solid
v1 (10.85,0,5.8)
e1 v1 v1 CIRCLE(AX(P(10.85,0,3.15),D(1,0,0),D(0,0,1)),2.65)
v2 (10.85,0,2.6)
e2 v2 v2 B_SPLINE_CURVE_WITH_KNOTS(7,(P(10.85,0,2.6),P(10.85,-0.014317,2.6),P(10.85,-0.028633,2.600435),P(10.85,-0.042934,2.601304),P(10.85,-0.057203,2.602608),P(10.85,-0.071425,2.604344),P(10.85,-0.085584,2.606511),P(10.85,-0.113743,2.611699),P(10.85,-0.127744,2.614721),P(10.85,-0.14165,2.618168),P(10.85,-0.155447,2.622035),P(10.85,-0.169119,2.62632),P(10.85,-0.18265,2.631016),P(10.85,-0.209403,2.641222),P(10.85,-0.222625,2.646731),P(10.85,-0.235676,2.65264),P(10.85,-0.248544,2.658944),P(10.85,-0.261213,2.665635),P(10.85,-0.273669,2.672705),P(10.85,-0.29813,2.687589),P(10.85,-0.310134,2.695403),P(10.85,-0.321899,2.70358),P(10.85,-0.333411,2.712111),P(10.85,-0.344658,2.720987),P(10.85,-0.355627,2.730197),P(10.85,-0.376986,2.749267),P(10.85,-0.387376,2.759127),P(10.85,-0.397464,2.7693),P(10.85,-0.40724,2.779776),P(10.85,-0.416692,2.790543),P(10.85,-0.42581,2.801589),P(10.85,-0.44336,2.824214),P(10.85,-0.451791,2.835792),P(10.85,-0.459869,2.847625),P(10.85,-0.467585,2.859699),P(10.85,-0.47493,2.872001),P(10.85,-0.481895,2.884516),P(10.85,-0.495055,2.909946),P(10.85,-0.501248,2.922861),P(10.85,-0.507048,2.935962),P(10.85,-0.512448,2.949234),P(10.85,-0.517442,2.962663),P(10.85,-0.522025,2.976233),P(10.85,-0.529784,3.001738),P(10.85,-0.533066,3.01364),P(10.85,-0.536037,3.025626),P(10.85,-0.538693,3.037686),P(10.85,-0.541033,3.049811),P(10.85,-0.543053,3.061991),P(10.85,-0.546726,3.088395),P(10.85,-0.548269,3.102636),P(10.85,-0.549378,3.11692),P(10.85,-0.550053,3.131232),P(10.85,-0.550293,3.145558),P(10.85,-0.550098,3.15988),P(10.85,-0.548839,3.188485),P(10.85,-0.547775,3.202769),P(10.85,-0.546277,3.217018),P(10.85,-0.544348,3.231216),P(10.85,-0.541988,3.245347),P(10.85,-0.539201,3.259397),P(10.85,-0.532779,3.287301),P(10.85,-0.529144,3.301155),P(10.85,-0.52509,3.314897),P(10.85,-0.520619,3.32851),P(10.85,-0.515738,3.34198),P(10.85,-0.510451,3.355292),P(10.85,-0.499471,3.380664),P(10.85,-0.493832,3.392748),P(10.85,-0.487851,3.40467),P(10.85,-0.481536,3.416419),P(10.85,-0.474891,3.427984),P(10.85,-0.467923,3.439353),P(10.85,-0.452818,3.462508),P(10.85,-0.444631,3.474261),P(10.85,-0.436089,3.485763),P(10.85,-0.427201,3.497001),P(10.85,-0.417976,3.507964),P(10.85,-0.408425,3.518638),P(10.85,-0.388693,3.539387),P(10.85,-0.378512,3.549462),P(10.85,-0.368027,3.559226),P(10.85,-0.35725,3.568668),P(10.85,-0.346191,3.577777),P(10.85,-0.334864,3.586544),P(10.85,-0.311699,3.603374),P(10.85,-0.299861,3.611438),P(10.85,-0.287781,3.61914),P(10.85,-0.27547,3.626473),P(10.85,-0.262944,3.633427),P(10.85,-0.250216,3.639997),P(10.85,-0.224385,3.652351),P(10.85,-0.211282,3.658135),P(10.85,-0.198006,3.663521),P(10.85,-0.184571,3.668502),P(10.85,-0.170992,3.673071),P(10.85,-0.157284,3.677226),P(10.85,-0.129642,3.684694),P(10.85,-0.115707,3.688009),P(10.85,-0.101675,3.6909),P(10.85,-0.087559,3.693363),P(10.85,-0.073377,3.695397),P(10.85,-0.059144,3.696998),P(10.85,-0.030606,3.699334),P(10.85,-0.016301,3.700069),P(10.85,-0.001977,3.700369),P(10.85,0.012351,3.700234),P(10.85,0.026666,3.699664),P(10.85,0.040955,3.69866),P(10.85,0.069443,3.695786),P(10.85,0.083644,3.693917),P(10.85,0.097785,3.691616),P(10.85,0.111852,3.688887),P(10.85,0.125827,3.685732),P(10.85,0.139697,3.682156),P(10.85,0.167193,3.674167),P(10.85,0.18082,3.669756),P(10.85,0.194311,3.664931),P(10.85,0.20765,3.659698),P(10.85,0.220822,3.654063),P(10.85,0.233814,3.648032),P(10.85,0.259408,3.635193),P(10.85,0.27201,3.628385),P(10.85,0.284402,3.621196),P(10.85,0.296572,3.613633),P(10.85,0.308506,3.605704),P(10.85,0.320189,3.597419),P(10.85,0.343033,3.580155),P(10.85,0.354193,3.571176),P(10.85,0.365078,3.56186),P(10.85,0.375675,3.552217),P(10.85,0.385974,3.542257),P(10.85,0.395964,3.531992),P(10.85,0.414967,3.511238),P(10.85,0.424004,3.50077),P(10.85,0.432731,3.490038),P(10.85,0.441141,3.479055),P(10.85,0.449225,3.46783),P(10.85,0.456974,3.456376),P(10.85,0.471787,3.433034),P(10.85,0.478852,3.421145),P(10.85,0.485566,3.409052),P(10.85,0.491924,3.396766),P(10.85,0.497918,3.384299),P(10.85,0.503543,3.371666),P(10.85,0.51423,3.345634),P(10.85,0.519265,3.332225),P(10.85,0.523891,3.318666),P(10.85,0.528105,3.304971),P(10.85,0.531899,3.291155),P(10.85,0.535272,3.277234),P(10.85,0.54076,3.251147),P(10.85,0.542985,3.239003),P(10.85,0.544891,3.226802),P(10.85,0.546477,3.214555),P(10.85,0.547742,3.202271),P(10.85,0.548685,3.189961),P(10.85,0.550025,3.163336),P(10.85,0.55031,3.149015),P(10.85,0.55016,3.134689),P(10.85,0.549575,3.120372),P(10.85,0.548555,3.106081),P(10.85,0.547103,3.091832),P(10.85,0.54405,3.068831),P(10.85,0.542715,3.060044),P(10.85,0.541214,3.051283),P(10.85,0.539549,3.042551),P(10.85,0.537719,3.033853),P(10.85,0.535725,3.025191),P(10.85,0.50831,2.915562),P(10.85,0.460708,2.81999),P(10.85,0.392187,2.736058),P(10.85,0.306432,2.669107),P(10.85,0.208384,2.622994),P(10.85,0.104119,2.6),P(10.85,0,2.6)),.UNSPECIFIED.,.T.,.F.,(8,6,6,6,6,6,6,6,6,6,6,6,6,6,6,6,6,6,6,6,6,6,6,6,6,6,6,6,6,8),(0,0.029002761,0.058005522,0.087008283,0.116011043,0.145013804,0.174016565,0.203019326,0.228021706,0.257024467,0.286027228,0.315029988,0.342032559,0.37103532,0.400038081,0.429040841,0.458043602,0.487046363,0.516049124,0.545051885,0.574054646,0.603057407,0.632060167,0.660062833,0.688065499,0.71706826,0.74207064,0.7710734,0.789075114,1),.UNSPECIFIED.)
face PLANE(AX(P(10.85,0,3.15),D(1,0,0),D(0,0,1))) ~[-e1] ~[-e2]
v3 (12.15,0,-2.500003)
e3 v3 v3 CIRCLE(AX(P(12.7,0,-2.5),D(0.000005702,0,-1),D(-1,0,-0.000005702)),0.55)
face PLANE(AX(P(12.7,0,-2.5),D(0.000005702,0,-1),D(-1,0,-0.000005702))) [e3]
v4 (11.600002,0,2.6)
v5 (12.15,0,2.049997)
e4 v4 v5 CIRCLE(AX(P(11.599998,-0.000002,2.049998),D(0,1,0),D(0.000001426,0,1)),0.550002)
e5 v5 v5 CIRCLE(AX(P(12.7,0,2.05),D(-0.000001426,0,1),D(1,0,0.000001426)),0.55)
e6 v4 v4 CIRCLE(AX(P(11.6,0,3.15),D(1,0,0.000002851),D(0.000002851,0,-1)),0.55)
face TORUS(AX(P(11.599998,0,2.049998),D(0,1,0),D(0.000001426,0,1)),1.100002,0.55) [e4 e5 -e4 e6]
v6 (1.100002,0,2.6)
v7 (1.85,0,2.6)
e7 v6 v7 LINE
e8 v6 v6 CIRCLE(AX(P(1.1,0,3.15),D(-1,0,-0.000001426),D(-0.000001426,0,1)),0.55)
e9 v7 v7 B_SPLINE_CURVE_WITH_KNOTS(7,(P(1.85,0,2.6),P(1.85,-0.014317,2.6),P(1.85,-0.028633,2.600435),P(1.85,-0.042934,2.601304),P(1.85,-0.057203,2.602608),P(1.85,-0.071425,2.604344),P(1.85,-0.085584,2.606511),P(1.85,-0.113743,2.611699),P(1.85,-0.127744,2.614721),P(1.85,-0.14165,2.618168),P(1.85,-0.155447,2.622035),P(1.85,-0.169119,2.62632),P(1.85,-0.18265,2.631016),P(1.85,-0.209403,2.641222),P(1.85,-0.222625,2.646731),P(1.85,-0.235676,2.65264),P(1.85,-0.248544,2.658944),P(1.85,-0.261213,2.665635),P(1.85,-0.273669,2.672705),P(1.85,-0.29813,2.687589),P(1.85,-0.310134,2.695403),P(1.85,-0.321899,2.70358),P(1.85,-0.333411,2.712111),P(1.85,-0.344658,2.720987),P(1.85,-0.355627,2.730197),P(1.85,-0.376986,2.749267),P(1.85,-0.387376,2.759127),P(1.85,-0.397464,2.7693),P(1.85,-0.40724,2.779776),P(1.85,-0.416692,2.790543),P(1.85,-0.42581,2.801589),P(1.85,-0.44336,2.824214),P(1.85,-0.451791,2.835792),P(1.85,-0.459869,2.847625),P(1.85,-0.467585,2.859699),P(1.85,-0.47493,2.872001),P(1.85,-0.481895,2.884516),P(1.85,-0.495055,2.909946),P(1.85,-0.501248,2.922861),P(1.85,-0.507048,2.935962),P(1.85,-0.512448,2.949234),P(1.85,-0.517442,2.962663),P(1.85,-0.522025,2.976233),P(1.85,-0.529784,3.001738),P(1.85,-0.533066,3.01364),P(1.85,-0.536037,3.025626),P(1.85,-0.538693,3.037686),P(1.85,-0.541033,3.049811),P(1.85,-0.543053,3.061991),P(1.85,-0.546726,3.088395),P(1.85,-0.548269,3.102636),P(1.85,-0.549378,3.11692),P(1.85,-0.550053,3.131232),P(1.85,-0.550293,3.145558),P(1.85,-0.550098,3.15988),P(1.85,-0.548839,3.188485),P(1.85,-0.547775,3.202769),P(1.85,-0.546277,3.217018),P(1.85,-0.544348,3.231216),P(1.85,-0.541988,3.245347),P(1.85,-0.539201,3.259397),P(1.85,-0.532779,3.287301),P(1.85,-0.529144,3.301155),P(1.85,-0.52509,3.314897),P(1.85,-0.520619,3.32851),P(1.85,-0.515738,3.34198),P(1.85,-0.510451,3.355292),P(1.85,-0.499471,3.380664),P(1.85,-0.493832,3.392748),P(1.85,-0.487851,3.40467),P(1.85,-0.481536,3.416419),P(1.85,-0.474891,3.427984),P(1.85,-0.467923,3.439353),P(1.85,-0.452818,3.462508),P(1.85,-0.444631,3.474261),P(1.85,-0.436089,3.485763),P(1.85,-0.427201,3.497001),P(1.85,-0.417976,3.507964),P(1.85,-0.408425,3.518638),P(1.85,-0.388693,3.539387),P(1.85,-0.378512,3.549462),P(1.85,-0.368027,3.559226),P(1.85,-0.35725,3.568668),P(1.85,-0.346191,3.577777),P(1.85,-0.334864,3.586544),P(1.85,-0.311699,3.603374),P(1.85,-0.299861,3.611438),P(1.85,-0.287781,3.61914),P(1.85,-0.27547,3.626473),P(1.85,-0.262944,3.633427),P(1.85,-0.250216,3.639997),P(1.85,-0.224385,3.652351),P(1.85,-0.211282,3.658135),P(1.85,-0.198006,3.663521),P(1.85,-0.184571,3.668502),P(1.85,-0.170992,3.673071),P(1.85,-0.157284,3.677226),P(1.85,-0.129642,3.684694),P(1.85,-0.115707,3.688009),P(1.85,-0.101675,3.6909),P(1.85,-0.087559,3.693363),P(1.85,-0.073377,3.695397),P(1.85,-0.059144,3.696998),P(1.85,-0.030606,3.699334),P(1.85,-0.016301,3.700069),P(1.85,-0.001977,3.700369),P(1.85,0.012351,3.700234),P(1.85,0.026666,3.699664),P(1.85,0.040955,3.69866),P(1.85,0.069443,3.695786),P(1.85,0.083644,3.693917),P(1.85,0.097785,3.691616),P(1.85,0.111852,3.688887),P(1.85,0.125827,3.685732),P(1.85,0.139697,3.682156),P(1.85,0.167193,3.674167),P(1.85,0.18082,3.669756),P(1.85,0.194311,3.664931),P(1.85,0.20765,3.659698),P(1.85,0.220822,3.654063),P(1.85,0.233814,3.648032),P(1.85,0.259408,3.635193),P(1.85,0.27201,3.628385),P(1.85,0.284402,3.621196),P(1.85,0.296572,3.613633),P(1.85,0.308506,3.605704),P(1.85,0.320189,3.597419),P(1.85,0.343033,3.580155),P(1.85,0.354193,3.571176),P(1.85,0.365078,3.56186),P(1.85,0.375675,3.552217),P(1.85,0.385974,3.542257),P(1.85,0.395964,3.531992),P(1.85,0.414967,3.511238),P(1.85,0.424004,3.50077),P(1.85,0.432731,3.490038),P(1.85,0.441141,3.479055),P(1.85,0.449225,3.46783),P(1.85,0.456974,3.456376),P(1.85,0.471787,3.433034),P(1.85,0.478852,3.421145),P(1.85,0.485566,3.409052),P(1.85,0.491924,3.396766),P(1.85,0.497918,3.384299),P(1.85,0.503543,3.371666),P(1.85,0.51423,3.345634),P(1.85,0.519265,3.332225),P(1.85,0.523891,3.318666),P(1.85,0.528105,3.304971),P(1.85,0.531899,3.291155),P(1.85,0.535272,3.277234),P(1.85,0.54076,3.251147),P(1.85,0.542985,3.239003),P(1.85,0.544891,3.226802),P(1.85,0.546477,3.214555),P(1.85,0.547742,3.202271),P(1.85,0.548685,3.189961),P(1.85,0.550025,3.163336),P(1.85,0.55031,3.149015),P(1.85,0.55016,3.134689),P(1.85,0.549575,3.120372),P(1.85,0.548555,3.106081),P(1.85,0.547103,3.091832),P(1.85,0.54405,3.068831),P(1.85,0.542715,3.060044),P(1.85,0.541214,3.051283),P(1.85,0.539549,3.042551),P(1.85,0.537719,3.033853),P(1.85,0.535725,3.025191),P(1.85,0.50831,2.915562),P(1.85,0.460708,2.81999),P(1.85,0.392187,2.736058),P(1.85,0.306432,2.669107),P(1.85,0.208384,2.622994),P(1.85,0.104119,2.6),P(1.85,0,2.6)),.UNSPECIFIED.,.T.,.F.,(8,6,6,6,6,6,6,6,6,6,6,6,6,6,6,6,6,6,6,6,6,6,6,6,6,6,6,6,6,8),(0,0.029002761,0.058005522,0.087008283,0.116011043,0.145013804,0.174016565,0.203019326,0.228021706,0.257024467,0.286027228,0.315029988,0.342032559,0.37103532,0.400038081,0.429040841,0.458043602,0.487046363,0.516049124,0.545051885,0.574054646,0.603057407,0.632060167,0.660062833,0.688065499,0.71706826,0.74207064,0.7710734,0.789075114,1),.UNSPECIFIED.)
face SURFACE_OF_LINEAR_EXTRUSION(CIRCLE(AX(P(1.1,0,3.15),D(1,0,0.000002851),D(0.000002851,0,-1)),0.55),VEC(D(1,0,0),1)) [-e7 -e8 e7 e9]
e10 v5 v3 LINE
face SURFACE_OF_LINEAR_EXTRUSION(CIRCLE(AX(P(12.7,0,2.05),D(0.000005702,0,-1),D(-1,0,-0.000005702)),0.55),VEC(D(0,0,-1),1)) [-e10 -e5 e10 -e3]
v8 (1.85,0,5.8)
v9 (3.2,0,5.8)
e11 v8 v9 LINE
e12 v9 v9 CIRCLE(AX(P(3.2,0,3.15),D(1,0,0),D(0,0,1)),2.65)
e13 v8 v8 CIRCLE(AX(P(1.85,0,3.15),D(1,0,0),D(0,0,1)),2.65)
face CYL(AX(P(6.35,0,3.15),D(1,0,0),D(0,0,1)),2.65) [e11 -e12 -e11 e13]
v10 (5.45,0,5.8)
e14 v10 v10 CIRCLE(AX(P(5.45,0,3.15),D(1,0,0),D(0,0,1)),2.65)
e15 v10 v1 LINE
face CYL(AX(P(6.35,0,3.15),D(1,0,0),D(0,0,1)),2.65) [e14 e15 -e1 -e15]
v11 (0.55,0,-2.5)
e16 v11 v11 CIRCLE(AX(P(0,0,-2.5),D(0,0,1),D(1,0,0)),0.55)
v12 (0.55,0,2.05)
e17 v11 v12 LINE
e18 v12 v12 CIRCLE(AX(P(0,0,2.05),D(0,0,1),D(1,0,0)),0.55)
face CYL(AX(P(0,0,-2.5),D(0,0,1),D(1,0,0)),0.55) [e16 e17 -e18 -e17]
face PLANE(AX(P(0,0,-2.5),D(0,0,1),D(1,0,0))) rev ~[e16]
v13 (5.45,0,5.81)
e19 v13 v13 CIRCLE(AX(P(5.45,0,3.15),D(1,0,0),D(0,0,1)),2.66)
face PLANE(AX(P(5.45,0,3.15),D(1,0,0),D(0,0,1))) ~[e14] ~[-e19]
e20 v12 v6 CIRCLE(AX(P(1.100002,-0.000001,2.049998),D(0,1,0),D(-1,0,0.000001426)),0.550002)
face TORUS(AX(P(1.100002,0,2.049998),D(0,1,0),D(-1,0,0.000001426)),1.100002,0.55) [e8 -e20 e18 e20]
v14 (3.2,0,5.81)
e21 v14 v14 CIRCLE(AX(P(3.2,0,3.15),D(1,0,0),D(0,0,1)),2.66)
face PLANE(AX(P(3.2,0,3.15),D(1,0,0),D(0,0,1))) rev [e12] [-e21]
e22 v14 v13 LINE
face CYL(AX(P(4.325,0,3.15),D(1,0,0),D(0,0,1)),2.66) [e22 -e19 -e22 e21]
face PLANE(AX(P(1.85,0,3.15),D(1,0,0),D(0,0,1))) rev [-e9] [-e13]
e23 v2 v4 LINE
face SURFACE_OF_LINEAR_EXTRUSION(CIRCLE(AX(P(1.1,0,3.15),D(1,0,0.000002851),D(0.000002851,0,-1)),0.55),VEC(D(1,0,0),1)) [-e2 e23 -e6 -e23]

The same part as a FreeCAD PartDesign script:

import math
import FreeCAD as App
import Part
import Sketcher
from FreeCAD import Vector
Q = App.Units.Quantity


def add_polygon(sketch, points):
    """Adds a closed chain of lines whose ends are joined by coincident constraints."""
    first, n = sketch.GeometryCount, len(points)
    for a, b in zip(points, points[1:] + points[:1]):
        sketch.addGeometry(Part.LineSegment(App.Vector(*a, 0), App.Vector(*b, 0)), False)
    for i in range(n):
        sketch.addConstraint(Sketcher.Constraint("Coincident", first + i, 2, first + (i + 1) % n, 1))

doc = App.newDocument("Part")
body = doc.addObject("PartDesign::Body", "Body")

sketch1 = body.newObject("Sketcher::SketchObject", "Sketch")
sketch1.AttachmentSupport = (doc.getObject("XZ_Plane"), [""])
sketch1.MapMode = "FlatFace"
add_polygon(sketch1, [(1.85, 5.8), (1.85, 3.15), (10.85, 3.15), (10.85, 5.8)])
sketch1.addGeometry(Part.LineSegment(Vector(1.85, 3.15, 0), Vector(10.85, 3.15, 0)), True)
sketch1.addConstraint(Sketcher.Constraint("Vertical", 0))
sketch1.addConstraint(Sketcher.Constraint("Horizontal", 1))
sketch1.addConstraint(Sketcher.Constraint("Vertical", 2))
sketch1.addConstraint(Sketcher.Constraint("Horizontal", 3))
sketch1.addConstraint(Sketcher.Constraint("Horizontal", 4))
sketch1.addConstraint(Sketcher.Constraint("Coincident", 4, 1, 0, 2))
sketch1.addConstraint(Sketcher.Constraint("Vertical", 2, 2, 4, 2))
sketch1.addConstraint(Sketcher.Constraint("DistanceX", 1, 1, 1, 2, Q("9 mm")))
sketch1.addConstraint(Sketcher.Constraint("DistanceY", 0, 2, 0, 1, Q("2.65 mm")))
sketch1.addConstraint(Sketcher.Constraint("DistanceY", -1, 1, 2, 2, Q("5.8 mm")))
sketch1.addConstraint(Sketcher.Constraint("DistanceX", -1, 1, 0, 2, Q("1.85 mm")))
revolution = body.newObject("PartDesign::Revolution", "Revolution")
revolution.Profile = sketch1
revolution.ReferenceAxis = (sketch1, ["Axis0"])
revolution.Angle = 360
body2 = doc.addObject("PartDesign::Body", "Body001")

sketch2 = body2.newObject("Sketcher::SketchObject", "Sketch001")
sketch2.AttachmentSupport = (doc.getObject("XY_Plane001"), [""])
sketch2.MapMode = "FlatFace"
sketch2.AttachmentOffset = App.Placement(Vector(0, 0, -2), App.Rotation())
sketch2.addGeometry(Part.Circle(Vector(0, 0, 0), Vector(0, 0, 1), 0.55), False)
sketch2.addConstraint(Sketcher.Constraint("Coincident", 0, 3, -1, 1))
sketch2.addConstraint(Sketcher.Constraint("Diameter", 0, Q("1.1 mm")))

sketch3 = body2.newObject("Sketcher::SketchObject", "Sketch002")
sketch3.AttachmentSupport = (doc.getObject("XZ_Plane001"), [""])
sketch3.MapMode = "FlatFace"
sketch3.addGeometry(Part.LineSegment(Vector(0, -2.5, 0), Vector(0, 2.05, 0)), False)
sketch3.addGeometry(Part.ArcOfCircle(Part.Circle(Vector(1.100002, 2.049998, 0), Vector(0, 0, 1), 1.100002), math.radians(90.000082), math.radians(179.999918)), False)
sketch3.addGeometry(Part.LineSegment(Vector(1.1, 3.15, 0), Vector(11.6, 3.15, 0)), False)
sketch3.addGeometry(Part.ArcOfCircle(Part.Circle(Vector(11.599998, 2.049998, 0), Vector(0, 0, 1), 1.100002), math.radians(0.000082), math.radians(89.999918)), False)
sketch3.addGeometry(Part.LineSegment(Vector(12.7, 2.05, 0), Vector(12.7, -2.5, 0)), False)
sketch3.addConstraint(Sketcher.Constraint("Tangent", 0, 2, 1, 2))
sketch3.addConstraint(Sketcher.Constraint("Tangent", 1, 1, 2, 1))
sketch3.addConstraint(Sketcher.Constraint("Tangent", 2, 2, 3, 2))
sketch3.addConstraint(Sketcher.Constraint("Tangent", 3, 1, 4, 1))
sketch3.addConstraint(Sketcher.Constraint("Vertical", 0))
sketch3.addConstraint(Sketcher.Constraint("Horizontal", 2))
sketch3.addConstraint(Sketcher.Constraint("Vertical", 4))
sketch3.addConstraint(Sketcher.Constraint("Equal", 1, 3))
sketch3.addConstraint(Sketcher.Constraint("PointOnObject", 0, 1, -2))
sketch3.addConstraint(Sketcher.Constraint("Horizontal", 0, 1, 4, 2))
sketch3.addConstraint(Sketcher.Constraint("Radius", 1, Q("1.100002 mm")))
sketch3.addConstraint(Sketcher.Constraint("DistanceX", 2, 1, 2, 2, Q("10.5 mm")))
sketch3.addConstraint(Sketcher.Constraint("DistanceY", 0, 1, 0, 2, Q("4.55 mm")))
sketch3.addConstraint(Sketcher.Constraint("DistanceY", 0, 1, -1, 1, Q("2.5 mm")))
doc.recompute()

additivepipe = body2.newObject("PartDesign::AdditivePipe", "AdditivePipe")
additivepipe.Profile = sketch2
additivepipe.Spine = (sketch3, ["Edge1", "Edge2", "Edge3", "Edge4", "Edge5"])
body3 = doc.addObject("PartDesign::Body", "Body002")

sketch4 = body3.newObject("Sketcher::SketchObject", "Sketch003")
sketch4.AttachmentSupport = (doc.getObject("XZ_Plane002"), [""])
sketch4.MapMode = "FlatFace"
add_polygon(sketch4, [(3.2, 5.81), (3.2, 5.79), (5.45, 5.79), (5.45, 5.81)])
sketch4.addGeometry(Part.LineSegment(Vector(3.2, 3.15, 0), Vector(5.45, 3.15, 0)), True)
sketch4.addConstraint(Sketcher.Constraint("Vertical", 0))
sketch4.addConstraint(Sketcher.Constraint("Horizontal", 1))
sketch4.addConstraint(Sketcher.Constraint("Vertical", 2))
sketch4.addConstraint(Sketcher.Constraint("Horizontal", 3))
sketch4.addConstraint(Sketcher.Constraint("Horizontal", 4))
sketch4.addConstraint(Sketcher.Constraint("Vertical", 3, 2, 4, 1))
sketch4.addConstraint(Sketcher.Constraint("Vertical", 2, 2, 4, 2))
sketch4.addConstraint(Sketcher.Constraint("DistanceX", 1, 1, 1, 2, Q("2.25 mm")))
sketch4.addConstraint(Sketcher.Constraint("DistanceY", 0, 2, 0, 1, Q("0.02 mm")))
sketch4.addConstraint(Sketcher.Constraint("DistanceX", -1, 1, 0, 2, Q("3.2 mm")))
sketch4.addConstraint(Sketcher.Constraint("DistanceY", -1, 1, 0, 2, Q("5.79 mm")))
sketch4.addConstraint(Sketcher.Constraint("DistanceY", -1, 1, 4, 1, Q("3.15 mm")))
revolution2 = body3.newObject("PartDesign::Revolution", "Revolution001")
revolution2.Profile = sketch4
revolution2.ReferenceAxis = (sketch4, ["Axis0"])
revolution2.Angle = 360
doc.recompute()

boolean = body3.newObject("PartDesign::Boolean", "Boolean")
boolean.Type = "Fuse"
boolean.addObjects([body])
doc.recompute()

boolean2 = body3.newObject("PartDesign::Boolean", "Boolean001")
boolean2.Type = "Fuse"
boolean2.addObjects([body2])

doc.recompute()
